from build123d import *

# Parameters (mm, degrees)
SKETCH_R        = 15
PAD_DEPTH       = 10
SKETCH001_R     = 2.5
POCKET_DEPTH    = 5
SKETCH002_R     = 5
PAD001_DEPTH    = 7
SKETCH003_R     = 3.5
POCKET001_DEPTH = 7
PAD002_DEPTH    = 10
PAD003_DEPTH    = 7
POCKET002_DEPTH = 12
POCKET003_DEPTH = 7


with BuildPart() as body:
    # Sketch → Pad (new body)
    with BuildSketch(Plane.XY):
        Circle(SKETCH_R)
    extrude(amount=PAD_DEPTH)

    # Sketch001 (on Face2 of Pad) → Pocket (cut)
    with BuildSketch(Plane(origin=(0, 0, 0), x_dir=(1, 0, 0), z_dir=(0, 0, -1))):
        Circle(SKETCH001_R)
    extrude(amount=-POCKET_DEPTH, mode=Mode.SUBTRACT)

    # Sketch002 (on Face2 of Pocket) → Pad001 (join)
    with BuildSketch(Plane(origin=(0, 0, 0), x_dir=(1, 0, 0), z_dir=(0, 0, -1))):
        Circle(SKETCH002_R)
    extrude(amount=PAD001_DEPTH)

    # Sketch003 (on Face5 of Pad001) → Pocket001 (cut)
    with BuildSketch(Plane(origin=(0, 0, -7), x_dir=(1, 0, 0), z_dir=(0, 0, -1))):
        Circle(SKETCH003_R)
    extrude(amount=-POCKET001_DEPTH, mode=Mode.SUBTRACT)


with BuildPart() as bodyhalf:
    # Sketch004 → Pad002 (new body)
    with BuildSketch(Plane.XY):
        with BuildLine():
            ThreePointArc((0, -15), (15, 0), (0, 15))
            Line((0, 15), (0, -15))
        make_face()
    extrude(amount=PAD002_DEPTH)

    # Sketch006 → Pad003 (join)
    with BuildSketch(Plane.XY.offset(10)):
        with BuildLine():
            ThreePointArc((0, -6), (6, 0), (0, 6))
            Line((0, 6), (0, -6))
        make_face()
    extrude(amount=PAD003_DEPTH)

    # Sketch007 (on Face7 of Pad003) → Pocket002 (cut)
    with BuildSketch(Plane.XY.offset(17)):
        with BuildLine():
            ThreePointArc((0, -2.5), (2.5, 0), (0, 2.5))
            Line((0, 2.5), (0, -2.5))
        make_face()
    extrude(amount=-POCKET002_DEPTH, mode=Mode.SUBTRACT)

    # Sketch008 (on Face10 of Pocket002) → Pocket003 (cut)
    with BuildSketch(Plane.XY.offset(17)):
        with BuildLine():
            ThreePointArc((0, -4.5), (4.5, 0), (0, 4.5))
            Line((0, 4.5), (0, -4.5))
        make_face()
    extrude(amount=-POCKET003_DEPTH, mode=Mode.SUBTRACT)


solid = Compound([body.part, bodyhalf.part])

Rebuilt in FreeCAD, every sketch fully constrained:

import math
import FreeCAD as App
import Part
import Sketcher

V = App.Vector

doc = App.newDocument("Part")
body = doc.addObject("PartDesign::Body", "Body")

sketch1 = doc.addObject("Sketcher::SketchObject", "Sketch")
body.addObject(sketch1)
sketch1.AttachmentSupport = (doc.XY_Plane, [""])
sketch1.MapMode = "FlatFace"
sketch1.addGeometry(Part.Circle(V(0, 0, 0), V(0, 0, 1), 15), False)
sketch1.addConstraint(Sketcher.Constraint("Coincident", 0, 3, -1, 1))
sketch1.addConstraint(Sketcher.Constraint("Diameter", 0, 30.0))
pad1 = doc.addObject("PartDesign::Pad", "Pad")
body.addObject(pad1)
pad1.Profile = sketch1
pad1.Length = 10

sketch2 = doc.addObject("Sketcher::SketchObject", "Sketch001")
body.addObject(sketch2)
sketch2.AttachmentSupport = (doc.XY_Plane, [""])
sketch2.MapMode = "FlatFace"
sketch2.addGeometry(Part.Circle(V(0, 0, 0), V(0, 0, 1), 2.5), False)
sketch2.addConstraint(Sketcher.Constraint("Coincident", 0, 3, -1, 1))
sketch2.addConstraint(Sketcher.Constraint("Diameter", 0, 5.0))
pocket1 = doc.addObject("PartDesign::Pocket", "Pocket")
body.addObject(pocket1)
pocket1.Profile = sketch2
pocket1.Length = 5
pocket1.Reversed = True

sketch3 = doc.addObject("Sketcher::SketchObject", "Sketch002")
body.addObject(sketch3)
sketch3.AttachmentSupport = (doc.XY_Plane, [""])
sketch3.MapMode = "FlatFace"
sketch3.addGeometry(Part.Circle(V(0, 0, 0), V(0, 0, 1), 5), False)
sketch3.addConstraint(Sketcher.Constraint("Coincident", 0, 3, -1, 1))
sketch3.addConstraint(Sketcher.Constraint("Diameter", 0, 10.0))
pad2 = doc.addObject("PartDesign::Pad", "Pad001")
body.addObject(pad2)
pad2.Profile = sketch3
pad2.Length = 7
pad2.Reversed = True

sketch4 = doc.addObject("Sketcher::SketchObject", "Sketch003")
body.addObject(sketch4)
sketch4.AttachmentSupport = (doc.XY_Plane, [""])
sketch4.MapMode = "FlatFace"
sketch4.AttachmentOffset = App.Placement(V(0, 0, -7), App.Rotation())
sketch4.addGeometry(Part.Circle(V(0, 0, 0), V(0, 0, 1), 3.5), False)
sketch4.addConstraint(Sketcher.Constraint("Coincident", 0, 3, -1, 1))
sketch4.addConstraint(Sketcher.Constraint("Diameter", 0, 7.0))
pocket2 = doc.addObject("PartDesign::Pocket", "Pocket001")
body.addObject(pocket2)
pocket2.Profile = sketch4
pocket2.Length = 7
pocket2.Reversed = True
body2 = doc.addObject("PartDesign::Body", "Body001")

sketch5 = doc.addObject("Sketcher::SketchObject", "Sketch004")
body2.addObject(sketch5)
sketch5.AttachmentSupport = (doc.getObject("XY_Plane001"), [""])
sketch5.MapMode = "FlatFace"
sketch5.addGeometry(Part.ArcOfCircle(Part.Circle(V(0, 0, 0), V(0, 0, 1), 15), math.radians(-90), math.radians(90)), False)
sketch5.addGeometry(Part.LineSegment(V(0, 15, 0), V(0, -15, 0)), False)
sketch5.addConstraint(Sketcher.Constraint("Coincident", 0, 1, 1, 2))
sketch5.addConstraint(Sketcher.Constraint("Coincident", 1, 1, 0, 2))
sketch5.addConstraint(Sketcher.Constraint("Vertical", 1))
sketch5.addConstraint(Sketcher.Constraint("Coincident", 0, 3, -1, 1))
sketch5.addConstraint(Sketcher.Constraint("PointOnObject", 0, 1, -2))
sketch5.addConstraint(Sketcher.Constraint("Radius", 0, 15.0))
pad3 = doc.addObject("PartDesign::Pad", "Pad002")
body2.addObject(pad3)
pad3.Profile = sketch5
pad3.Length = 10

sketch6 = doc.addObject("Sketcher::SketchObject", "Sketch005")
body2.addObject(sketch6)
sketch6.AttachmentSupport = (doc.getObject("XY_Plane001"), [""])
sketch6.MapMode = "FlatFace"
sketch6.AttachmentOffset = App.Placement(V(0, 0, 10), App.Rotation())
sketch6.addGeometry(Part.ArcOfCircle(Part.Circle(V(0, 0, 0), V(0, 0, 1), 6), math.radians(-90), math.radians(90)), False)
sketch6.addGeometry(Part.LineSegment(V(0, 6, 0), V(0, -6, 0)), False)
sketch6.addConstraint(Sketcher.Constraint("Coincident", 0, 1, 1, 2))
sketch6.addConstraint(Sketcher.Constraint("Coincident", 1, 1, 0, 2))
sketch6.addConstraint(Sketcher.Constraint("Vertical", 1))
sketch6.addConstraint(Sketcher.Constraint("Coincident", 0, 3, -1, 1))
sketch6.addConstraint(Sketcher.Constraint("PointOnObject", 0, 1, -2))
sketch6.addConstraint(Sketcher.Constraint("Radius", 0, 6.0))
pad4 = doc.addObject("PartDesign::Pad", "Pad003")
body2.addObject(pad4)
pad4.Profile = sketch6
pad4.Length = 7

sketch7 = doc.addObject("Sketcher::SketchObject", "Sketch006")
body2.addObject(sketch7)
sketch7.AttachmentSupport = (doc.getObject("XY_Plane001"), [""])
sketch7.MapMode = "FlatFace"
sketch7.AttachmentOffset = App.Placement(V(0, 0, 17), App.Rotation())
sketch7.addGeometry(Part.ArcOfCircle(Part.Circle(V(0, 0, 0), V(0, 0, 1), 2.5), math.radians(-90), math.radians(90)), False)
sketch7.addGeometry(Part.LineSegment(V(0, 2.5, 0), V(0, -2.5, 0)), False)
sketch7.addConstraint(Sketcher.Constraint("Coincident", 0, 1, 1, 2))
sketch7.addConstraint(Sketcher.Constraint("Coincident", 1, 1, 0, 2))
sketch7.addConstraint(Sketcher.Constraint("Vertical", 1))
sketch7.addConstraint(Sketcher.Constraint("Coincident", 0, 3, -1, 1))
sketch7.addConstraint(Sketcher.Constraint("PointOnObject", 0, 1, -2))
sketch7.addConstraint(Sketcher.Constraint("Radius", 0, 2.5))
pocket3 = doc.addObject("PartDesign::Pocket", "Pocket002")
body2.addObject(pocket3)
pocket3.Profile = sketch7
pocket3.Length = 12

sketch8 = doc.addObject("Sketcher::SketchObject", "Sketch007")
body2.addObject(sketch8)
sketch8.AttachmentSupport = (doc.getObject("XY_Plane001"), [""])
sketch8.MapMode = "FlatFace"
sketch8.AttachmentOffset = App.Placement(V(0, 0, 17), App.Rotation())
sketch8.addGeometry(Part.ArcOfCircle(Part.Circle(V(0, 0, 0), V(0, 0, 1), 4.5), math.radians(-90), math.radians(90)), False)
sketch8.addGeometry(Part.LineSegment(V(0, 4.5, 0), V(0, -4.5, 0)), False)
sketch8.addConstraint(Sketcher.Constraint("Coincident", 0, 1, 1, 2))
sketch8.addConstraint(Sketcher.Constraint("Coincident", 1, 1, 0, 2))
sketch8.addConstraint(Sketcher.Constraint("Vertical", 1))
sketch8.addConstraint(Sketcher.Constraint("Coincident", 0, 3, -1, 1))
sketch8.addConstraint(Sketcher.Constraint("PointOnObject", 0, 1, -2))
sketch8.addConstraint(Sketcher.Constraint("Radius", 0, 4.5))
pocket4 = doc.addObject("PartDesign::Pocket", "Pocket003")
body2.addObject(pocket4)
pocket4.Profile = sketch8
pocket4.Length = 7

doc.recompute()
